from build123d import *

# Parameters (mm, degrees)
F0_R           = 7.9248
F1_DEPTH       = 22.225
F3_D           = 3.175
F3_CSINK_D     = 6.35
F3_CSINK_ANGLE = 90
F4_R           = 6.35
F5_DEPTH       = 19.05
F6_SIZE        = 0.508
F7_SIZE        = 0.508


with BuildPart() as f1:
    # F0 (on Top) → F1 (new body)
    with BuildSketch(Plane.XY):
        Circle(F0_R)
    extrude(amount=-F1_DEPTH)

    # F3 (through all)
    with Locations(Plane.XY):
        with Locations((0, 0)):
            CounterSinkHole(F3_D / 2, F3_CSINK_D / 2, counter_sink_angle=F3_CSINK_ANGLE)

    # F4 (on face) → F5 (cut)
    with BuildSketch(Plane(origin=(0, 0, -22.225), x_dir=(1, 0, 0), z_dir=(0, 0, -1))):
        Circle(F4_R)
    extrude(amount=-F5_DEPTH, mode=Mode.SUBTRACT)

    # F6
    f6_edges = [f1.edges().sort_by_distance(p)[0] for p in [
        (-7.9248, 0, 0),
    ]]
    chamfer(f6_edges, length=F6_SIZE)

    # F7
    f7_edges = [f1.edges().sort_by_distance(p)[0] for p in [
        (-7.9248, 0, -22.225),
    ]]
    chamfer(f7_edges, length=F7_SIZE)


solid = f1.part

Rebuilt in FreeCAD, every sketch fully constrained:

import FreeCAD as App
import Part
import Sketcher
from FreeCAD import Vector
Q = App.Units.Quantity


def edges_at(feature, points):
    """Names of the edges that pass closest to the given points."""
    edges = feature.Shape.Edges
    near = lambda p: min(range(len(edges)), key=lambda i: edges[i].distToShape(Part.Vertex(*p))[0])
    return sorted({f"Edge{near(p) + 1}" for p in points})

doc = App.newDocument("Part")
body = doc.addObject("PartDesign::Body", "Body")

# Sketch on XY plane
sketch1 = doc.addObject("Sketcher::SketchObject", "Sketch")
body.addObject(sketch1)
sketch1.AttachmentSupport = (doc.XY_Plane, [""])
sketch1.MapMode = "FlatFace"
sketch1.addGeometry(Part.Circle(Vector(0, 0, 0), Vector(0, 0, 1), 8), False)
sketch1.addConstraint(Sketcher.Constraint("Coincident", 0, 3, -1, 1))
sketch1.addConstraint(Sketcher.Constraint("Diameter", 0, Q("0.624 in")))
pad1 = doc.addObject("PartDesign::Pad", "Pad")
body.addObject(pad1)
pad1.Profile = sketch1
pad1.Length = Q("0.875 in")
pad1.Reversed = True

# Sketch on XY plane
sketch2 = doc.addObject("Sketcher::SketchObject", "Sketch001")
body.addObject(sketch2)
sketch2.AttachmentSupport = (doc.XY_Plane, [""])
sketch2.MapMode = "FlatFace"
sketch2.addGeometry(Part.Circle(Vector(0, 0, 0), Vector(0, 0, 1), 1.6), False)
sketch2.addConstraint(Sketcher.Constraint("Coincident", 0, 3, -1, 1))
sketch2.addConstraint(Sketcher.Constraint("Diameter", 0, Q("0.125 in")))
doc.recompute()
hole = doc.addObject("PartDesign::Hole", "Hole")
body.addObject(hole)
hole.Profile = sketch2
hole.ThreadType = "None"
hole.Diameter = Q("0.125 in")
hole.DepthType = "ThroughAll"
hole.HoleCutType = "Countersink"
hole.HoleCutDiameter = Q("0.25 in")
hole.HoleCutCountersinkAngle = 90

# Sketch on XY plane
sketch3 = doc.addObject("Sketcher::SketchObject", "Sketch002")
body.addObject(sketch3)
sketch3.AttachmentSupport = (doc.XY_Plane, [""])
sketch3.MapMode = "FlatFace"
sketch3.AttachmentOffset = App.Placement(Vector(0, 0, -0.875 * 25.4), App.Rotation())
sketch3.addGeometry(Part.Circle(Vector(0, 0, 0), Vector(0, 0, 1), 6), False)
sketch3.addConstraint(Sketcher.Constraint("Coincident", 0, 3, -1, 1))
sketch3.addConstraint(Sketcher.Constraint("Diameter", 0, Q("0.5 in")))
pocket1 = doc.addObject("PartDesign::Pocket", "Pocket")
body.addObject(pocket1)
pocket1.Profile = sketch3
pocket1.Length = Q("0.75 in")
pocket1.Reversed = True
doc.recompute()

chamfer = doc.addObject("PartDesign::Chamfer", "Chamfer")
body.addObject(chamfer)
chamfer.Base = (pocket1, edges_at(pocket1, [(-7.925, 0, 0)]))
chamfer.Size = Q("0.02 in")
doc.recompute()

chamfer2 = doc.addObject("PartDesign::Chamfer", "Chamfer001")
body.addObject(chamfer2)
chamfer2.Base = (chamfer, edges_at(chamfer, [(-7.925, 0, -22.225)]))
chamfer2.Size = Q("0.02 in")

doc.recompute()
